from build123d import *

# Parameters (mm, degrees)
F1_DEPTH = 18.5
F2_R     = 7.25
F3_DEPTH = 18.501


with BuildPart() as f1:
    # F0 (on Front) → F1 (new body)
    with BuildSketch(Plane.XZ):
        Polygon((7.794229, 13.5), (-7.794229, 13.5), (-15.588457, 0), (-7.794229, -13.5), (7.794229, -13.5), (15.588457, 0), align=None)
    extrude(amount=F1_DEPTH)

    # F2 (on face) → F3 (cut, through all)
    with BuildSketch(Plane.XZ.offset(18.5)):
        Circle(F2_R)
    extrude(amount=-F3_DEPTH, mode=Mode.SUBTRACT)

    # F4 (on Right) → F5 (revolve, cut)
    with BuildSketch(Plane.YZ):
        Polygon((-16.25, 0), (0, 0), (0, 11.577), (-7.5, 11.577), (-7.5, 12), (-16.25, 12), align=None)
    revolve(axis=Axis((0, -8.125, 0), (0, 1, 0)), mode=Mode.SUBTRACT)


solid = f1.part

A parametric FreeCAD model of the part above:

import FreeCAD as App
import Part
import Sketcher
Q = App.Units.Quantity


def add_polygon(sketch, points):
    """Adds a closed chain of lines whose ends are joined by coincident constraints."""
    first, n = sketch.GeometryCount, len(points)
    for a, b in zip(points, points[1:] + points[:1]):
        sketch.addGeometry(Part.LineSegment(App.Vector(*a, 0), App.Vector(*b, 0)), False)
    for i in range(n):
        sketch.addConstraint(Sketcher.Constraint("Coincident", first + i, 2, first + (i + 1) % n, 1))

doc = App.newDocument("Part")
body = doc.addObject("PartDesign::Body", "Body")

# Sketch on XZ plane
sketch1 = body.newObject("Sketcher::SketchObject", "Sketch")
sketch1.AttachmentSupport = (doc.getObject("XZ_Plane"), [""])
sketch1.MapMode = "FlatFace"
add_polygon(sketch1, [(8, 14), (-8, 14), (-16, 0), (-8, -14), (8, -14), (16, 0)])  # lines 0-5
sketch1.addConstraint([
    Sketcher.Constraint("Horizontal", 0),
    Sketcher.Constraint("Horizontal", 3),
    Sketcher.Constraint("Symmetric", 0, 2, 3, 2, -1, 1),
    Sketcher.Constraint("Symmetric", 1, 2, 4, 2, -1, 1),
    Sketcher.Constraint("PointOnObject", 1, 2, -1),
    Sketcher.Constraint("Parallel", 2, 5),
    Sketcher.Constraint("Vertical", 0, 2, 2, 2),
    Sketcher.Constraint("Angle", 1, Q("-119.999998 deg")),
    Sketcher.Constraint("DistanceY", 2, 2, 0, 2, Q("27 mm")),
    Sketcher.Constraint("DistanceX", 0, 2, 0, 1, Q("15.588458 mm")),
])
pad1 = body.newObject("PartDesign::Pad", "Pad")
pad1.Profile = sketch1
pad1.Length = 18.5

# Sketch on XZ plane
sketch2 = body.newObject("Sketcher::SketchObject", "Sketch001")
sketch2.AttachmentSupport = (doc.getObject("XZ_Plane"), [""])
sketch2.MapMode = "FlatFace"
sketch2.AttachmentOffset = App.Placement(App.Vector(0, 0, 18.5), App.Rotation())
sketch2.addGeometry(Part.Circle(App.Vector(0, 0, 0), App.Vector(0, 0, 1), 7), False)
sketch2.addConstraint([
    Sketcher.Constraint("Coincident", 0, 3, -1, 1),
    Sketcher.Constraint("Diameter", 0, Q("14.5 mm")),
])
pocket1 = body.newObject("PartDesign::Pocket", "Pocket")
pocket1.Profile = sketch2
pocket1.Type = "ThroughAll"

# Sketch on YZ plane
sketch3 = body.newObject("Sketcher::SketchObject", "Sketch002")
sketch3.AttachmentSupport = (doc.getObject("YZ_Plane"), [""])
sketch3.MapMode = "FlatFace"
add_polygon(sketch3, [(-16.25, 0), (0, 0), (0, 11.58), (-7.5, 11.58), (-7.5, 12), (-16.25, 12)])  # lines 0-5
sketch3.addConstraint([
    Sketcher.Constraint("Horizontal", 0),
    Sketcher.Constraint("Vertical", 1),
    Sketcher.Constraint("Horizontal", 2),
    Sketcher.Constraint("Vertical", 3),
    Sketcher.Constraint("Horizontal", 4),
    Sketcher.Constraint("Vertical", 5),
    Sketcher.Constraint("Coincident", 0, 2, -1, 1),
    Sketcher.Constraint("DistanceY", 5, 2, 5, 1, Q("12 mm")),
    Sketcher.Constraint("DistanceX", 2, 2, 2, 1, Q("7.5 mm")),
    Sketcher.Constraint("DistanceX", 0, 1, 0, 2, Q("16.25 mm")),
    Sketcher.Constraint("DistanceY", 1, 1, 1, 2, Q("11.577 mm")),
])
groove = body.newObject("PartDesign::Groove", "Groove")
groove.Profile = sketch3
groove.ReferenceAxis = (sketch3, ["H_Axis"])
groove.Angle = 360

doc.recompute()
